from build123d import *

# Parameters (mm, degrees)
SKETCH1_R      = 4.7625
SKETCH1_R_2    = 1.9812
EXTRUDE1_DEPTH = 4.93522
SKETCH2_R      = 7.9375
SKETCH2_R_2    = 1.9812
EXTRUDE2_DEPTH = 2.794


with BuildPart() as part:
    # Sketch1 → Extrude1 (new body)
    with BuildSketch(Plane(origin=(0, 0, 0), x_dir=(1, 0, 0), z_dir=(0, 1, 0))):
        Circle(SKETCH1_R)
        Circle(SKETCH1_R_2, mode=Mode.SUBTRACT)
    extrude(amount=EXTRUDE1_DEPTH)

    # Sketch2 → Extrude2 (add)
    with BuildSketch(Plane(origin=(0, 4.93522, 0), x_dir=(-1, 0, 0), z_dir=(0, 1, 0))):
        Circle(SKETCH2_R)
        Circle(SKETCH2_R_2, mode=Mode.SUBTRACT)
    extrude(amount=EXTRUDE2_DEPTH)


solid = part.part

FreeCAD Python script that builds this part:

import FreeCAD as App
import Part
import Sketcher

V = App.Vector
Q = App.Units.Quantity

doc = App.newDocument("Part")
body = doc.addObject("PartDesign::Body", "Body")

# Sketch on XZ plane
sketch1 = body.newObject("Sketcher::SketchObject", "Sketch")
sketch1.AttachmentSupport = (doc.getObject("XZ_Plane"), [""])
sketch1.MapMode = "FlatFace"
sketch1.addGeometry([
    Part.Circle(V(0, 0, 0), V(0, 0, 1), 4.7625),
    Part.Circle(V(0, 0, 0), V(0, 0, 1), 1.9812),
], False)
sketch1.addConstraint([
    Sketcher.Constraint("Coincident", 0, 3, -1, 1),
    Sketcher.Constraint("Coincident", 1, 3, -1, 1),
    Sketcher.Constraint("Diameter", 0, Q("0.375 in")),
    Sketcher.Constraint("Diameter", 1, Q("0.156 in")),
])
pad1 = body.newObject("PartDesign::Pad", "Pad")
pad1.Profile = sketch1
pad1.Length = Q("0.1943 in")
pad1.Reversed = True

# Sketch on XZ plane
sketch2 = body.newObject("Sketcher::SketchObject", "Sketch001")
sketch2.AttachmentSupport = (doc.getObject("XZ_Plane"), [""])
sketch2.MapMode = "FlatFace"
sketch2.AttachmentOffset = App.Placement(V(0, 0, -0.1943 * 25.4), App.Rotation())
sketch2.addGeometry([
    Part.Circle(V(0, 0, 0), V(0, 0, 1), 7.9375),
    Part.Circle(V(0, 0, 0), V(0, 0, 1), 1.9812),
], False)
sketch2.addConstraint([
    Sketcher.Constraint("Coincident", 0, 3, -1, 1),
    Sketcher.Constraint("Coincident", 1, 3, -1, 1),
    Sketcher.Constraint("Diameter", 0, Q("0.625 in")),
    Sketcher.Constraint("Diameter", 1, Q("0.156 in")),
])
pad2 = body.newObject("PartDesign::Pad", "Pad001")
pad2.Profile = sketch2
pad2.Length = Q("0.11 in")
pad2.Reversed = True

doc.recompute()
